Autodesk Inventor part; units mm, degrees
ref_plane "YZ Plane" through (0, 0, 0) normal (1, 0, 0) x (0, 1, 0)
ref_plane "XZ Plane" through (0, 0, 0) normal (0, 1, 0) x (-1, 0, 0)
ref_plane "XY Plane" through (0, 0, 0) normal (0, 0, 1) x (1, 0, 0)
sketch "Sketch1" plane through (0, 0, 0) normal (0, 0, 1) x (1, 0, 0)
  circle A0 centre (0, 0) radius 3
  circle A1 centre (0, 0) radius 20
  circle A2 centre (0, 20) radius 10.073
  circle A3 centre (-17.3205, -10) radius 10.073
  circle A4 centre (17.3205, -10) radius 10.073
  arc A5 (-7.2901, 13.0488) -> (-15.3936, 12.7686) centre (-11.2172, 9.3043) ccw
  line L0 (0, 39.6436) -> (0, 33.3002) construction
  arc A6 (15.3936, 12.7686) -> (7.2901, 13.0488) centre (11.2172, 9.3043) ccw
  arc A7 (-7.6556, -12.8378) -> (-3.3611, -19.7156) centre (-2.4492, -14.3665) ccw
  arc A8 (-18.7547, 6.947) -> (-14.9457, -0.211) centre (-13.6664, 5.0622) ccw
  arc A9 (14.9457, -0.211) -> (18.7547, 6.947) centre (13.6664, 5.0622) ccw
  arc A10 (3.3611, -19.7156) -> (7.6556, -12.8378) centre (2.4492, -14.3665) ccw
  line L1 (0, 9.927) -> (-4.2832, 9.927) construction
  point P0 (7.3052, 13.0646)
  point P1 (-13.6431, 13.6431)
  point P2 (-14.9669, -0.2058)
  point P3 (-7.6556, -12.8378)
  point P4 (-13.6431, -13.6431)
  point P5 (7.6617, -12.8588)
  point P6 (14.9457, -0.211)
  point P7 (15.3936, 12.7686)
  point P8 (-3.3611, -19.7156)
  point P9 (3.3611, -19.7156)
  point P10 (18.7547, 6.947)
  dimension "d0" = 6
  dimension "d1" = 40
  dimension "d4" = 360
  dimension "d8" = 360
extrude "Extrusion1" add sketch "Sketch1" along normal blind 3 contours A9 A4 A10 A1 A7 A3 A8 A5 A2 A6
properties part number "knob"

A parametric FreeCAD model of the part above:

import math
import FreeCAD as App
import Part
import Sketcher

V = App.Vector
Q = App.Units.Quantity

doc = App.newDocument("Part")
params = doc.addObject("Spreadsheet::Sheet", "Params")
for row, (alias, value) in enumerate([
    ("sketch1_diameter", "6 mm"),
    ("sketch1_radius", "20 mm"),
    ("pad1_length", "3 mm"),
], start=1):
    params.set(f"A{row}", alias)
    params.set(f"B{row}", "=" + value)
    params.setAlias(f"B{row}", alias)

body = doc.addObject("PartDesign::Body", "Body")

# Sketch on XY plane
sketch1 = doc.addObject("Sketcher::SketchObject", "Sketch")
body.addObject(sketch1)
sketch1.AttachmentSupport = (doc.XY_Plane, [""])
sketch1.MapMode = "FlatFace"
sketch1.addGeometry(Part.ArcOfCircle(Part.Circle(V(13.7, 5.1, 0), V(0, 0, 1), 5.4), math.radians(-76), math.radians(20)), False)
sketch1.addGeometry(Part.ArcOfCircle(Part.Circle(V(0, 0, 0), V(0, 0, 1), 20), math.radians(20.33), math.radians(39.67)), False)
sketch1.addGeometry(Part.ArcOfCircle(Part.Circle(V(11.2, 9.3, 0), V(0, 0, 1), 5.4), math.radians(40), math.radians(136)), False)
sketch1.addGeometry(Part.ArcOfCircle(Part.Circle(V(0, 20, 0), V(0, 0, 1), 10.1), math.radians(-136), math.radians(-44)), False)
sketch1.addGeometry(Part.ArcOfCircle(Part.Circle(V(-11.2, 9.3, 0), V(0, 0, 1), 5.4), math.radians(44), math.radians(140)), False)
sketch1.addGeometry(Part.ArcOfCircle(Part.Circle(V(0, 0, 0), V(0, 0, 1), 20), math.radians(140.33), math.radians(159.67)), False)
sketch1.addGeometry(Part.ArcOfCircle(Part.Circle(V(-13.7, 5.1, 0), V(0, 0, 1), 5.4), math.radians(160), math.radians(256)), False)
sketch1.addGeometry(Part.ArcOfCircle(Part.Circle(V(-17.3, -10, 0), V(0, 0, 1), 10.1), math.radians(-16), math.radians(76)), False)
sketch1.addGeometry(Part.ArcOfCircle(Part.Circle(V(-2.4, -14.4, 0), V(0, 0, 1), 5.4), math.radians(164), math.radians(260)), False)
sketch1.addGeometry(Part.ArcOfCircle(Part.Circle(V(0, 0, 0), V(0, 0, 1), 20), math.radians(-99.67), math.radians(-80.33)), False)
sketch1.addGeometry(Part.ArcOfCircle(Part.Circle(V(2.4, -14.4, 0), V(0, 0, 1), 5.4), math.radians(-80), math.radians(16)), False)
sketch1.addGeometry(Part.ArcOfCircle(Part.Circle(V(17.3, -10, 0), V(0, 0, 1), 10.1), math.radians(104), math.radians(196)), False)
sketch1.addGeometry(Part.Circle(V(0, 0, 0), V(0, 0, 1), 3), False)
sketch1.addConstraint(Sketcher.Constraint("Tangent", 0, 2, 1, 1))
sketch1.addConstraint(Sketcher.Constraint("Tangent", 1, 2, 2, 1))
sketch1.addConstraint(Sketcher.Constraint("Tangent", 2, 2, 3, 2))
sketch1.addConstraint(Sketcher.Constraint("Tangent", 3, 1, 4, 1))
sketch1.addConstraint(Sketcher.Constraint("Tangent", 4, 2, 5, 1))
sketch1.addConstraint(Sketcher.Constraint("Tangent", 5, 2, 6, 1))
sketch1.addConstraint(Sketcher.Constraint("Tangent", 6, 2, 7, 2))
sketch1.addConstraint(Sketcher.Constraint("Tangent", 7, 1, 8, 1))
sketch1.addConstraint(Sketcher.Constraint("Tangent", 8, 2, 9, 1))
sketch1.addConstraint(Sketcher.Constraint("Tangent", 9, 2, 10, 1))
sketch1.addConstraint(Sketcher.Constraint("Tangent", 10, 2, 11, 2))
sketch1.addConstraint(Sketcher.Constraint("Tangent", 11, 1, 0, 1))
sketch1.addConstraint(Sketcher.Constraint("Coincident", 1, 3, -1, 1))
sketch1.addConstraint(Sketcher.Constraint("Coincident", 5, 3, -1, 1))
sketch1.addConstraint(Sketcher.Constraint("Coincident", 9, 3, -1, 1))
sketch1.addConstraint(Sketcher.Constraint("Coincident", 12, 3, -1, 1))
sketch1.addConstraint(Sketcher.Constraint("Equal", 0, 2))
sketch1.addConstraint(Sketcher.Constraint("Equal", 2, 4))
sketch1.addConstraint(Sketcher.Constraint("Equal", 1, 5))
sketch1.addConstraint(Sketcher.Constraint("Equal", 4, 6))
sketch1.addConstraint(Sketcher.Constraint("Equal", 3, 7))
sketch1.addConstraint(Sketcher.Constraint("Equal", 6, 8))
sketch1.addConstraint(Sketcher.Constraint("Equal", 5, 9))
sketch1.addConstraint(Sketcher.Constraint("Equal", 8, 10))
sketch1.addConstraint(Sketcher.Constraint("Equal", 7, 11))
sketch1.addConstraint(Sketcher.Constraint("Symmetric", 7, 3, 11, 3, -2))
sketch1.addConstraint(Sketcher.Constraint("PointOnObject", 3, 3, -2))
sketch1.addConstraint(Sketcher.Constraint("Diameter", 12, Q("6 mm")))
sketch1.addConstraint(Sketcher.Constraint("Radius", 1, Q("20 mm")))
sketch1.addConstraint(Sketcher.Constraint("DistanceY", -1, 1, 3, 3, Q("20 mm")))
sketch1.addConstraint(Sketcher.Constraint("DistanceY", 7, 3, -1, 1, Q("10 mm")))
sketch1.addConstraint(Sketcher.Constraint("Radius", 3, Q("10.073 mm")))
sketch1.addConstraint(Sketcher.Constraint("Radius", 0, Q("5.4262 mm")))
sketch1.addConstraint(Sketcher.Constraint("DistanceY", -1, 1, 0, 2, Q("6.947 mm")))
sketch1.setExpression("Constraints[27]", "Params.sketch1_diameter")
sketch1.setExpression("Constraints[28]", "Params.sketch1_radius")
pad1 = doc.addObject("PartDesign::Pad", "Pad")
body.addObject(pad1)
pad1.Profile = sketch1
pad1.setExpression("Length", "Params.pad1_length")

doc.recompute()
